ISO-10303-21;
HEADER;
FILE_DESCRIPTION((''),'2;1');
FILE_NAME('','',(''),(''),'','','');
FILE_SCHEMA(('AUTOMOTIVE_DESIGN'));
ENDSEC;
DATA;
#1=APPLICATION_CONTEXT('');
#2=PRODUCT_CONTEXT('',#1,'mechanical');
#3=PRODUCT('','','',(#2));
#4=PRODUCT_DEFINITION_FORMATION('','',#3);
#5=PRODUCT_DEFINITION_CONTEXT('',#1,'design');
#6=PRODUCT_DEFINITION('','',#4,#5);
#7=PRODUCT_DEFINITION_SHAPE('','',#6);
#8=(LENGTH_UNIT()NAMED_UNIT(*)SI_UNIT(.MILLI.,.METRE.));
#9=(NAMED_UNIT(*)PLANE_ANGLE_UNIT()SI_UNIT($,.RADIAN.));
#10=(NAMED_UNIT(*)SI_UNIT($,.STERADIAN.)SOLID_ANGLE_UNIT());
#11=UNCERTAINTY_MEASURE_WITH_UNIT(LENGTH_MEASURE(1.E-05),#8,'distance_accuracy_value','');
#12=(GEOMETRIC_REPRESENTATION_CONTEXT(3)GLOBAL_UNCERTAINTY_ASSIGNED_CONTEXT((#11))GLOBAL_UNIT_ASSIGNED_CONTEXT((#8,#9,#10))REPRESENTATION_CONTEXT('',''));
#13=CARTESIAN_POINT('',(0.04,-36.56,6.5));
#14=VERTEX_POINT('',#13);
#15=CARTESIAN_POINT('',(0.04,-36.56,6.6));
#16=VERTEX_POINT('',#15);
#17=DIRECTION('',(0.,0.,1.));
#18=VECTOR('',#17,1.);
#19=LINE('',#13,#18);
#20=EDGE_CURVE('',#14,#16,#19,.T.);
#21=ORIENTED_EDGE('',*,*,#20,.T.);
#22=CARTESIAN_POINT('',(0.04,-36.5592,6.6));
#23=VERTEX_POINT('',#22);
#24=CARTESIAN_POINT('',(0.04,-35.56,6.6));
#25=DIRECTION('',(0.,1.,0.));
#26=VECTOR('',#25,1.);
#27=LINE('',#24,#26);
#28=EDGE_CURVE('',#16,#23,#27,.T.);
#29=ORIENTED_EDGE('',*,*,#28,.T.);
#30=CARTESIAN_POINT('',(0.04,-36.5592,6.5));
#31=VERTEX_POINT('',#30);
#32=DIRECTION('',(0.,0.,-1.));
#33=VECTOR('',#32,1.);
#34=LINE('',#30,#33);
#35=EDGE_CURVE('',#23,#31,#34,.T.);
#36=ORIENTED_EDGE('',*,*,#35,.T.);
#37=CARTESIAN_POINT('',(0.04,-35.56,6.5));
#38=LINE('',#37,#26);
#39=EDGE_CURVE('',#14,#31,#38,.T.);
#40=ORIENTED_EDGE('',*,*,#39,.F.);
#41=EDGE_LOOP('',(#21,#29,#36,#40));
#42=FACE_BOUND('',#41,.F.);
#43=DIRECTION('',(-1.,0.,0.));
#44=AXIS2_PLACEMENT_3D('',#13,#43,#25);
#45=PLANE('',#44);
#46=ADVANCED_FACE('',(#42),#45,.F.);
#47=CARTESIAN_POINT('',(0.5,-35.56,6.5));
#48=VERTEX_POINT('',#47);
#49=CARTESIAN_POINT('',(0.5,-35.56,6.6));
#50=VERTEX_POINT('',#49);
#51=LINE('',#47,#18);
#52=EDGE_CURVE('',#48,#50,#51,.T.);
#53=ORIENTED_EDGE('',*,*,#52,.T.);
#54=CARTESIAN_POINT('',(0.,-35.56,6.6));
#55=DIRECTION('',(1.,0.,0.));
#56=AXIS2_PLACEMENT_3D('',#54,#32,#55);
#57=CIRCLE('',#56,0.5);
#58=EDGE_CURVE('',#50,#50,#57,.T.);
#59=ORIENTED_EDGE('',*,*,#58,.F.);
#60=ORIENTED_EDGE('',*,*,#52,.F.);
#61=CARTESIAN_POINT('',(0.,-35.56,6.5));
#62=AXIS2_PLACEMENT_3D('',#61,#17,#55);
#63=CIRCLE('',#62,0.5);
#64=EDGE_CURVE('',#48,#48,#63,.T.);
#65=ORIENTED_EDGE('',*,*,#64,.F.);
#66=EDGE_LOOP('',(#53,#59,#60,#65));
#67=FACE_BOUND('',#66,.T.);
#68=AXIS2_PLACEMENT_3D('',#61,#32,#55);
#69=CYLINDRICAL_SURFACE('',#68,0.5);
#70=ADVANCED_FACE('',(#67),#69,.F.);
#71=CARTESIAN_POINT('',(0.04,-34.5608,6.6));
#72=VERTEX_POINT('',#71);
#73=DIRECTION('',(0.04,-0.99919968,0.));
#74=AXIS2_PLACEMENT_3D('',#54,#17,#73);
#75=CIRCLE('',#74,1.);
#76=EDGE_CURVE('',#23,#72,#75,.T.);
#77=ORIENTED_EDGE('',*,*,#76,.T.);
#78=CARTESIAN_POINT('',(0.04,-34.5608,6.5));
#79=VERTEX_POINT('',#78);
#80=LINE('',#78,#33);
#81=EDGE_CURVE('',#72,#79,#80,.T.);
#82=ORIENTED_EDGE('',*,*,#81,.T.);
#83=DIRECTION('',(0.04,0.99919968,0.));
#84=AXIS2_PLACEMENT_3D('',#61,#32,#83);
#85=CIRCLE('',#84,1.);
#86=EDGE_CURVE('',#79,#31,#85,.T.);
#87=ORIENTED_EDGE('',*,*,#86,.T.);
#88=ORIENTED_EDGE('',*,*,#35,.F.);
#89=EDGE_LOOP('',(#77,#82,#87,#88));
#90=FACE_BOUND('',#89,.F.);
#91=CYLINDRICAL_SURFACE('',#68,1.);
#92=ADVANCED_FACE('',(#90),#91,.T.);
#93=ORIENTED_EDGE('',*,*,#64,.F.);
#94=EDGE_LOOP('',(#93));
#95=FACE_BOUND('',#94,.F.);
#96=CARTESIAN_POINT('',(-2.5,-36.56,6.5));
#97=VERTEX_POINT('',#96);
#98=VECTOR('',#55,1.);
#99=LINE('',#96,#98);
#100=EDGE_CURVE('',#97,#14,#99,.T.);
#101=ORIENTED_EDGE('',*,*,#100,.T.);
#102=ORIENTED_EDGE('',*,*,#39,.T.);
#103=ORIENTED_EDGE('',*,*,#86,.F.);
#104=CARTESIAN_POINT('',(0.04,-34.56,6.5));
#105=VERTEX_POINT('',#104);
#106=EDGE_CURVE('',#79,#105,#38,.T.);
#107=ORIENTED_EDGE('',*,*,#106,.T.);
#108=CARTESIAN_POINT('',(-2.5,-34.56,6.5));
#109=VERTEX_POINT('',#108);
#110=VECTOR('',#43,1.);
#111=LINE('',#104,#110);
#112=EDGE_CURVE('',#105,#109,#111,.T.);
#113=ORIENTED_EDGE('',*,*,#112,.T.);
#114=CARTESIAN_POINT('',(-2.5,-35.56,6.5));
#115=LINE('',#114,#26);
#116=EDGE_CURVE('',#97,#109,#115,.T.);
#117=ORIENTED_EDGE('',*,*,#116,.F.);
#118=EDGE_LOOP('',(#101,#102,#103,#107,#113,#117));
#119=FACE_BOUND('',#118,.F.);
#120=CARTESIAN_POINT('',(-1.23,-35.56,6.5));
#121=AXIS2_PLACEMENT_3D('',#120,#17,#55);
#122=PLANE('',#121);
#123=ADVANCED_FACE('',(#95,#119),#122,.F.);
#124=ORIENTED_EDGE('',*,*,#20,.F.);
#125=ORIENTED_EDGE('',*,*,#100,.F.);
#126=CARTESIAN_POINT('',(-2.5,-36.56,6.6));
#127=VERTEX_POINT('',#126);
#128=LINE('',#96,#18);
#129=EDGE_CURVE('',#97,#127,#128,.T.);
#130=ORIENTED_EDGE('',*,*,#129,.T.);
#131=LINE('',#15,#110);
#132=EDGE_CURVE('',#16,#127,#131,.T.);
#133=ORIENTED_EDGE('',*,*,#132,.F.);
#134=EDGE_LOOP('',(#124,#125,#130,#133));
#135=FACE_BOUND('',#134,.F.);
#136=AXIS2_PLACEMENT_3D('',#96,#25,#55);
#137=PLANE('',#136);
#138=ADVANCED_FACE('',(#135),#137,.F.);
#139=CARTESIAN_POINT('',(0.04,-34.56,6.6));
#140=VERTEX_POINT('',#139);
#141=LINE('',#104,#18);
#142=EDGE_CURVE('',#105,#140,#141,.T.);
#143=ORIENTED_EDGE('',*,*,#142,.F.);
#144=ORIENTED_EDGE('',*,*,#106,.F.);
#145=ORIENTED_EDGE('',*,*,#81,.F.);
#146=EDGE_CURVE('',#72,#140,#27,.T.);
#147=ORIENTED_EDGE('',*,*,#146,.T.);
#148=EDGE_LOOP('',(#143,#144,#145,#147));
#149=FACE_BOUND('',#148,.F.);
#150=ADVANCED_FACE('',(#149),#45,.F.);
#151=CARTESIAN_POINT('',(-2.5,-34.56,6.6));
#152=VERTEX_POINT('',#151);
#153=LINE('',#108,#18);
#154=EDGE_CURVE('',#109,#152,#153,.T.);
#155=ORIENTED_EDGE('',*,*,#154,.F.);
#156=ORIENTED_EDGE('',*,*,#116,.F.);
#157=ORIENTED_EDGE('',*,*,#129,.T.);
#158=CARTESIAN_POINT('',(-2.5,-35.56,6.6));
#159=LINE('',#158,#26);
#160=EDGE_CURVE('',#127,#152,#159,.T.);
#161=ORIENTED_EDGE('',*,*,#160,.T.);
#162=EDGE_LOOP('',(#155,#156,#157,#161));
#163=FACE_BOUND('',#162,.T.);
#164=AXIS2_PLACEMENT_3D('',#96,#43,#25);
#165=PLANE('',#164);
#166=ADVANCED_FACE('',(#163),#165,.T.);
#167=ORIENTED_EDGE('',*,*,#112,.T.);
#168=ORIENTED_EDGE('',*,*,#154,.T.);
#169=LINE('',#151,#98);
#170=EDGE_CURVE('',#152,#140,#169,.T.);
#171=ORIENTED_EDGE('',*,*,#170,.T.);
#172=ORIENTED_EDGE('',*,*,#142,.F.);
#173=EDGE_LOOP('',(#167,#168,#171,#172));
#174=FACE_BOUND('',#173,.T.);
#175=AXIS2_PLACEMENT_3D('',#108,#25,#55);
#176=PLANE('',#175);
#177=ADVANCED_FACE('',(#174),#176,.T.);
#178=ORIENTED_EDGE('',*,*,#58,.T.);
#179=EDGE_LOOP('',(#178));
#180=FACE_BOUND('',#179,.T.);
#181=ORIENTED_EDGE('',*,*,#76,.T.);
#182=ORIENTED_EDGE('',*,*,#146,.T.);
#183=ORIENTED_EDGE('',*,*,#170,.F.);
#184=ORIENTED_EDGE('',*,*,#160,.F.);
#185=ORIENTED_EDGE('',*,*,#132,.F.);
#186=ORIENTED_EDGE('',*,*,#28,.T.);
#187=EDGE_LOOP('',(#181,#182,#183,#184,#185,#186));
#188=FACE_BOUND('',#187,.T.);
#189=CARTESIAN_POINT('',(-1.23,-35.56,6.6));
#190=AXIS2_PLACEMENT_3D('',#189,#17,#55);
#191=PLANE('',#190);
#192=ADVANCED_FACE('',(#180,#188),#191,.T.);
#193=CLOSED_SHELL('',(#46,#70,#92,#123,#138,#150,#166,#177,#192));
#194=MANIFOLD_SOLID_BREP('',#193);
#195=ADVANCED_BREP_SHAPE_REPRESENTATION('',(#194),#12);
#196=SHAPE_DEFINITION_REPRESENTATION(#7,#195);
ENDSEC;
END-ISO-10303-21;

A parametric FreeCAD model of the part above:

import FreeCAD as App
import Part
import Sketcher
from FreeCAD import Vector

doc = App.newDocument("Part")
body = doc.addObject("PartDesign::Body", "Body")

sketch1 = body.newObject("Sketcher::SketchObject", "Sketch")
sketch1.AttachmentSupport = (doc.getObject("XY_Plane"), [""])
sketch1.MapMode = "FlatFace"
sketch1.AttachmentOffset = App.Placement(Vector(0, 0, 1), App.Rotation())
sketch1.addGeometry(Part.Circle(Vector(0, 0, 0), Vector(0, 0, 1), 0.5), False)
sketch1.addConstraint(Sketcher.Constraint("Coincident", 0, 3, -1, 1))
sketch1.addConstraint(Sketcher.Constraint("Diameter", 0, 1.0))
pad1 = body.newObject("PartDesign::Pad", "Pad")
pad1.Profile = sketch1
pad1.Length = 0.1
body2 = doc.addObject("PartDesign::Body", "Body001")

sketch2 = body2.newObject("Sketcher::SketchObject", "Sketch001")
sketch2.AttachmentSupport = (doc.getObject("XY_Plane001"), [""])
sketch2.MapMode = "FlatFace"
sketch2.AttachmentOffset = App.Placement(Vector(0, 0, 1), App.Rotation())
sketch2.addGeometry(Part.LineSegment(Vector(-2.5, 1, 0), Vector(-2.5, -1, 0)), False)
sketch2.addGeometry(Part.LineSegment(Vector(-2.5, -1, 0), Vector(0.04, -1, 0)), False)
sketch2.addGeometry(Part.LineSegment(Vector(0.04, -1, 0), Vector(0.04, 1, 0)), False)
sketch2.addGeometry(Part.LineSegment(Vector(0.04, 1, 0), Vector(-2.5, 1, 0)), False)
sketch2.addConstraint(Sketcher.Constraint("Coincident", 0, 2, 1, 1))
sketch2.addConstraint(Sketcher.Constraint("Coincident", 1, 2, 2, 1))
sketch2.addConstraint(Sketcher.Constraint("Coincident", 2, 2, 3, 1))
sketch2.addConstraint(Sketcher.Constraint("Coincident", 3, 2, 0, 1))
sketch2.addConstraint(Sketcher.Constraint("Vertical", 0))
sketch2.addConstraint(Sketcher.Constraint("Horizontal", 1))
sketch2.addConstraint(Sketcher.Constraint("Vertical", 2))
sketch2.addConstraint(Sketcher.Constraint("Horizontal", 3))
sketch2.addConstraint(Sketcher.Constraint("DistanceY", 0, 2, 0, 1, 2.0))
sketch2.addConstraint(Sketcher.Constraint("DistanceY", 0, 2, -1, 1, 1.0))
sketch2.addConstraint(Sketcher.Constraint("DistanceX", 1, 1, 1, 2, 2.54))
sketch2.addConstraint(Sketcher.Constraint("DistanceX", 0, 2, -1, 1, 2.5))
pad2 = body2.newObject("PartDesign::Pad", "Pad001")
pad2.Profile = sketch2
pad2.Length = 0.1
doc.recompute()

boolean = body2.newObject("PartDesign::Boolean", "Boolean")
boolean.Type = "Cut"
boolean.addObjects([body])
body3 = doc.addObject("PartDesign::Body", "Body002")

sketch3 = body3.newObject("Sketcher::SketchObject", "Sketch002")
sketch3.AttachmentSupport = (doc.getObject("XY_Plane002"), [""])
sketch3.MapMode = "FlatFace"
sketch3.AttachmentOffset = App.Placement(Vector(0, 0, 1), App.Rotation())
sketch3.addGeometry(Part.Circle(Vector(0, 0, 0), Vector(0, 0, 1), 0.5), False)
sketch3.addConstraint(Sketcher.Constraint("Coincident", 0, 3, -1, 1))
sketch3.addConstraint(Sketcher.Constraint("Diameter", 0, 1.0))
pad3 = body3.newObject("PartDesign::Pad", "Pad002")
pad3.Profile = sketch3
pad3.Length = 0.1
body4 = doc.addObject("PartDesign::Body", "Body003")

sketch4 = body4.newObject("Sketcher::SketchObject", "Sketch003")
sketch4.AttachmentSupport = (doc.getObject("XY_Plane003"), [""])
sketch4.MapMode = "FlatFace"
sketch4.AttachmentOffset = App.Placement(Vector(0, 0, 1), App.Rotation())
sketch4.addGeometry(Part.Circle(Vector(0, 0, 0), Vector(0, 0, 1), 1), False)
sketch4.addConstraint(Sketcher.Constraint("Coincident", 0, 3, -1, 1))
sketch4.addConstraint(Sketcher.Constraint("Diameter", 0, 2.0))
pad4 = body4.newObject("PartDesign::Pad", "Pad003")
pad4.Profile = sketch4
pad4.Length = 0.1
doc.recompute()

boolean2 = body4.newObject("PartDesign::Boolean", "Boolean001")
boolean2.Type = "Cut"
boolean2.addObjects([body3])
doc.recompute()

boolean3 = body4.newObject("PartDesign::Boolean", "Boolean002")
boolean3.Type = "Fuse"
boolean3.addObjects([body2])
body5 = doc.addObject("PartDesign::Body", "Body004")
doc.recompute()

body4.Placement = App.Placement(Vector(0, -35.56, 5.5), App.Rotation(Vector(0, 0, 1), 0))
boolean4 = body5.newObject("PartDesign::Boolean", "Boolean003")
boolean4.Type = "Fuse"
boolean4.addObjects([body4])

doc.recompute()
